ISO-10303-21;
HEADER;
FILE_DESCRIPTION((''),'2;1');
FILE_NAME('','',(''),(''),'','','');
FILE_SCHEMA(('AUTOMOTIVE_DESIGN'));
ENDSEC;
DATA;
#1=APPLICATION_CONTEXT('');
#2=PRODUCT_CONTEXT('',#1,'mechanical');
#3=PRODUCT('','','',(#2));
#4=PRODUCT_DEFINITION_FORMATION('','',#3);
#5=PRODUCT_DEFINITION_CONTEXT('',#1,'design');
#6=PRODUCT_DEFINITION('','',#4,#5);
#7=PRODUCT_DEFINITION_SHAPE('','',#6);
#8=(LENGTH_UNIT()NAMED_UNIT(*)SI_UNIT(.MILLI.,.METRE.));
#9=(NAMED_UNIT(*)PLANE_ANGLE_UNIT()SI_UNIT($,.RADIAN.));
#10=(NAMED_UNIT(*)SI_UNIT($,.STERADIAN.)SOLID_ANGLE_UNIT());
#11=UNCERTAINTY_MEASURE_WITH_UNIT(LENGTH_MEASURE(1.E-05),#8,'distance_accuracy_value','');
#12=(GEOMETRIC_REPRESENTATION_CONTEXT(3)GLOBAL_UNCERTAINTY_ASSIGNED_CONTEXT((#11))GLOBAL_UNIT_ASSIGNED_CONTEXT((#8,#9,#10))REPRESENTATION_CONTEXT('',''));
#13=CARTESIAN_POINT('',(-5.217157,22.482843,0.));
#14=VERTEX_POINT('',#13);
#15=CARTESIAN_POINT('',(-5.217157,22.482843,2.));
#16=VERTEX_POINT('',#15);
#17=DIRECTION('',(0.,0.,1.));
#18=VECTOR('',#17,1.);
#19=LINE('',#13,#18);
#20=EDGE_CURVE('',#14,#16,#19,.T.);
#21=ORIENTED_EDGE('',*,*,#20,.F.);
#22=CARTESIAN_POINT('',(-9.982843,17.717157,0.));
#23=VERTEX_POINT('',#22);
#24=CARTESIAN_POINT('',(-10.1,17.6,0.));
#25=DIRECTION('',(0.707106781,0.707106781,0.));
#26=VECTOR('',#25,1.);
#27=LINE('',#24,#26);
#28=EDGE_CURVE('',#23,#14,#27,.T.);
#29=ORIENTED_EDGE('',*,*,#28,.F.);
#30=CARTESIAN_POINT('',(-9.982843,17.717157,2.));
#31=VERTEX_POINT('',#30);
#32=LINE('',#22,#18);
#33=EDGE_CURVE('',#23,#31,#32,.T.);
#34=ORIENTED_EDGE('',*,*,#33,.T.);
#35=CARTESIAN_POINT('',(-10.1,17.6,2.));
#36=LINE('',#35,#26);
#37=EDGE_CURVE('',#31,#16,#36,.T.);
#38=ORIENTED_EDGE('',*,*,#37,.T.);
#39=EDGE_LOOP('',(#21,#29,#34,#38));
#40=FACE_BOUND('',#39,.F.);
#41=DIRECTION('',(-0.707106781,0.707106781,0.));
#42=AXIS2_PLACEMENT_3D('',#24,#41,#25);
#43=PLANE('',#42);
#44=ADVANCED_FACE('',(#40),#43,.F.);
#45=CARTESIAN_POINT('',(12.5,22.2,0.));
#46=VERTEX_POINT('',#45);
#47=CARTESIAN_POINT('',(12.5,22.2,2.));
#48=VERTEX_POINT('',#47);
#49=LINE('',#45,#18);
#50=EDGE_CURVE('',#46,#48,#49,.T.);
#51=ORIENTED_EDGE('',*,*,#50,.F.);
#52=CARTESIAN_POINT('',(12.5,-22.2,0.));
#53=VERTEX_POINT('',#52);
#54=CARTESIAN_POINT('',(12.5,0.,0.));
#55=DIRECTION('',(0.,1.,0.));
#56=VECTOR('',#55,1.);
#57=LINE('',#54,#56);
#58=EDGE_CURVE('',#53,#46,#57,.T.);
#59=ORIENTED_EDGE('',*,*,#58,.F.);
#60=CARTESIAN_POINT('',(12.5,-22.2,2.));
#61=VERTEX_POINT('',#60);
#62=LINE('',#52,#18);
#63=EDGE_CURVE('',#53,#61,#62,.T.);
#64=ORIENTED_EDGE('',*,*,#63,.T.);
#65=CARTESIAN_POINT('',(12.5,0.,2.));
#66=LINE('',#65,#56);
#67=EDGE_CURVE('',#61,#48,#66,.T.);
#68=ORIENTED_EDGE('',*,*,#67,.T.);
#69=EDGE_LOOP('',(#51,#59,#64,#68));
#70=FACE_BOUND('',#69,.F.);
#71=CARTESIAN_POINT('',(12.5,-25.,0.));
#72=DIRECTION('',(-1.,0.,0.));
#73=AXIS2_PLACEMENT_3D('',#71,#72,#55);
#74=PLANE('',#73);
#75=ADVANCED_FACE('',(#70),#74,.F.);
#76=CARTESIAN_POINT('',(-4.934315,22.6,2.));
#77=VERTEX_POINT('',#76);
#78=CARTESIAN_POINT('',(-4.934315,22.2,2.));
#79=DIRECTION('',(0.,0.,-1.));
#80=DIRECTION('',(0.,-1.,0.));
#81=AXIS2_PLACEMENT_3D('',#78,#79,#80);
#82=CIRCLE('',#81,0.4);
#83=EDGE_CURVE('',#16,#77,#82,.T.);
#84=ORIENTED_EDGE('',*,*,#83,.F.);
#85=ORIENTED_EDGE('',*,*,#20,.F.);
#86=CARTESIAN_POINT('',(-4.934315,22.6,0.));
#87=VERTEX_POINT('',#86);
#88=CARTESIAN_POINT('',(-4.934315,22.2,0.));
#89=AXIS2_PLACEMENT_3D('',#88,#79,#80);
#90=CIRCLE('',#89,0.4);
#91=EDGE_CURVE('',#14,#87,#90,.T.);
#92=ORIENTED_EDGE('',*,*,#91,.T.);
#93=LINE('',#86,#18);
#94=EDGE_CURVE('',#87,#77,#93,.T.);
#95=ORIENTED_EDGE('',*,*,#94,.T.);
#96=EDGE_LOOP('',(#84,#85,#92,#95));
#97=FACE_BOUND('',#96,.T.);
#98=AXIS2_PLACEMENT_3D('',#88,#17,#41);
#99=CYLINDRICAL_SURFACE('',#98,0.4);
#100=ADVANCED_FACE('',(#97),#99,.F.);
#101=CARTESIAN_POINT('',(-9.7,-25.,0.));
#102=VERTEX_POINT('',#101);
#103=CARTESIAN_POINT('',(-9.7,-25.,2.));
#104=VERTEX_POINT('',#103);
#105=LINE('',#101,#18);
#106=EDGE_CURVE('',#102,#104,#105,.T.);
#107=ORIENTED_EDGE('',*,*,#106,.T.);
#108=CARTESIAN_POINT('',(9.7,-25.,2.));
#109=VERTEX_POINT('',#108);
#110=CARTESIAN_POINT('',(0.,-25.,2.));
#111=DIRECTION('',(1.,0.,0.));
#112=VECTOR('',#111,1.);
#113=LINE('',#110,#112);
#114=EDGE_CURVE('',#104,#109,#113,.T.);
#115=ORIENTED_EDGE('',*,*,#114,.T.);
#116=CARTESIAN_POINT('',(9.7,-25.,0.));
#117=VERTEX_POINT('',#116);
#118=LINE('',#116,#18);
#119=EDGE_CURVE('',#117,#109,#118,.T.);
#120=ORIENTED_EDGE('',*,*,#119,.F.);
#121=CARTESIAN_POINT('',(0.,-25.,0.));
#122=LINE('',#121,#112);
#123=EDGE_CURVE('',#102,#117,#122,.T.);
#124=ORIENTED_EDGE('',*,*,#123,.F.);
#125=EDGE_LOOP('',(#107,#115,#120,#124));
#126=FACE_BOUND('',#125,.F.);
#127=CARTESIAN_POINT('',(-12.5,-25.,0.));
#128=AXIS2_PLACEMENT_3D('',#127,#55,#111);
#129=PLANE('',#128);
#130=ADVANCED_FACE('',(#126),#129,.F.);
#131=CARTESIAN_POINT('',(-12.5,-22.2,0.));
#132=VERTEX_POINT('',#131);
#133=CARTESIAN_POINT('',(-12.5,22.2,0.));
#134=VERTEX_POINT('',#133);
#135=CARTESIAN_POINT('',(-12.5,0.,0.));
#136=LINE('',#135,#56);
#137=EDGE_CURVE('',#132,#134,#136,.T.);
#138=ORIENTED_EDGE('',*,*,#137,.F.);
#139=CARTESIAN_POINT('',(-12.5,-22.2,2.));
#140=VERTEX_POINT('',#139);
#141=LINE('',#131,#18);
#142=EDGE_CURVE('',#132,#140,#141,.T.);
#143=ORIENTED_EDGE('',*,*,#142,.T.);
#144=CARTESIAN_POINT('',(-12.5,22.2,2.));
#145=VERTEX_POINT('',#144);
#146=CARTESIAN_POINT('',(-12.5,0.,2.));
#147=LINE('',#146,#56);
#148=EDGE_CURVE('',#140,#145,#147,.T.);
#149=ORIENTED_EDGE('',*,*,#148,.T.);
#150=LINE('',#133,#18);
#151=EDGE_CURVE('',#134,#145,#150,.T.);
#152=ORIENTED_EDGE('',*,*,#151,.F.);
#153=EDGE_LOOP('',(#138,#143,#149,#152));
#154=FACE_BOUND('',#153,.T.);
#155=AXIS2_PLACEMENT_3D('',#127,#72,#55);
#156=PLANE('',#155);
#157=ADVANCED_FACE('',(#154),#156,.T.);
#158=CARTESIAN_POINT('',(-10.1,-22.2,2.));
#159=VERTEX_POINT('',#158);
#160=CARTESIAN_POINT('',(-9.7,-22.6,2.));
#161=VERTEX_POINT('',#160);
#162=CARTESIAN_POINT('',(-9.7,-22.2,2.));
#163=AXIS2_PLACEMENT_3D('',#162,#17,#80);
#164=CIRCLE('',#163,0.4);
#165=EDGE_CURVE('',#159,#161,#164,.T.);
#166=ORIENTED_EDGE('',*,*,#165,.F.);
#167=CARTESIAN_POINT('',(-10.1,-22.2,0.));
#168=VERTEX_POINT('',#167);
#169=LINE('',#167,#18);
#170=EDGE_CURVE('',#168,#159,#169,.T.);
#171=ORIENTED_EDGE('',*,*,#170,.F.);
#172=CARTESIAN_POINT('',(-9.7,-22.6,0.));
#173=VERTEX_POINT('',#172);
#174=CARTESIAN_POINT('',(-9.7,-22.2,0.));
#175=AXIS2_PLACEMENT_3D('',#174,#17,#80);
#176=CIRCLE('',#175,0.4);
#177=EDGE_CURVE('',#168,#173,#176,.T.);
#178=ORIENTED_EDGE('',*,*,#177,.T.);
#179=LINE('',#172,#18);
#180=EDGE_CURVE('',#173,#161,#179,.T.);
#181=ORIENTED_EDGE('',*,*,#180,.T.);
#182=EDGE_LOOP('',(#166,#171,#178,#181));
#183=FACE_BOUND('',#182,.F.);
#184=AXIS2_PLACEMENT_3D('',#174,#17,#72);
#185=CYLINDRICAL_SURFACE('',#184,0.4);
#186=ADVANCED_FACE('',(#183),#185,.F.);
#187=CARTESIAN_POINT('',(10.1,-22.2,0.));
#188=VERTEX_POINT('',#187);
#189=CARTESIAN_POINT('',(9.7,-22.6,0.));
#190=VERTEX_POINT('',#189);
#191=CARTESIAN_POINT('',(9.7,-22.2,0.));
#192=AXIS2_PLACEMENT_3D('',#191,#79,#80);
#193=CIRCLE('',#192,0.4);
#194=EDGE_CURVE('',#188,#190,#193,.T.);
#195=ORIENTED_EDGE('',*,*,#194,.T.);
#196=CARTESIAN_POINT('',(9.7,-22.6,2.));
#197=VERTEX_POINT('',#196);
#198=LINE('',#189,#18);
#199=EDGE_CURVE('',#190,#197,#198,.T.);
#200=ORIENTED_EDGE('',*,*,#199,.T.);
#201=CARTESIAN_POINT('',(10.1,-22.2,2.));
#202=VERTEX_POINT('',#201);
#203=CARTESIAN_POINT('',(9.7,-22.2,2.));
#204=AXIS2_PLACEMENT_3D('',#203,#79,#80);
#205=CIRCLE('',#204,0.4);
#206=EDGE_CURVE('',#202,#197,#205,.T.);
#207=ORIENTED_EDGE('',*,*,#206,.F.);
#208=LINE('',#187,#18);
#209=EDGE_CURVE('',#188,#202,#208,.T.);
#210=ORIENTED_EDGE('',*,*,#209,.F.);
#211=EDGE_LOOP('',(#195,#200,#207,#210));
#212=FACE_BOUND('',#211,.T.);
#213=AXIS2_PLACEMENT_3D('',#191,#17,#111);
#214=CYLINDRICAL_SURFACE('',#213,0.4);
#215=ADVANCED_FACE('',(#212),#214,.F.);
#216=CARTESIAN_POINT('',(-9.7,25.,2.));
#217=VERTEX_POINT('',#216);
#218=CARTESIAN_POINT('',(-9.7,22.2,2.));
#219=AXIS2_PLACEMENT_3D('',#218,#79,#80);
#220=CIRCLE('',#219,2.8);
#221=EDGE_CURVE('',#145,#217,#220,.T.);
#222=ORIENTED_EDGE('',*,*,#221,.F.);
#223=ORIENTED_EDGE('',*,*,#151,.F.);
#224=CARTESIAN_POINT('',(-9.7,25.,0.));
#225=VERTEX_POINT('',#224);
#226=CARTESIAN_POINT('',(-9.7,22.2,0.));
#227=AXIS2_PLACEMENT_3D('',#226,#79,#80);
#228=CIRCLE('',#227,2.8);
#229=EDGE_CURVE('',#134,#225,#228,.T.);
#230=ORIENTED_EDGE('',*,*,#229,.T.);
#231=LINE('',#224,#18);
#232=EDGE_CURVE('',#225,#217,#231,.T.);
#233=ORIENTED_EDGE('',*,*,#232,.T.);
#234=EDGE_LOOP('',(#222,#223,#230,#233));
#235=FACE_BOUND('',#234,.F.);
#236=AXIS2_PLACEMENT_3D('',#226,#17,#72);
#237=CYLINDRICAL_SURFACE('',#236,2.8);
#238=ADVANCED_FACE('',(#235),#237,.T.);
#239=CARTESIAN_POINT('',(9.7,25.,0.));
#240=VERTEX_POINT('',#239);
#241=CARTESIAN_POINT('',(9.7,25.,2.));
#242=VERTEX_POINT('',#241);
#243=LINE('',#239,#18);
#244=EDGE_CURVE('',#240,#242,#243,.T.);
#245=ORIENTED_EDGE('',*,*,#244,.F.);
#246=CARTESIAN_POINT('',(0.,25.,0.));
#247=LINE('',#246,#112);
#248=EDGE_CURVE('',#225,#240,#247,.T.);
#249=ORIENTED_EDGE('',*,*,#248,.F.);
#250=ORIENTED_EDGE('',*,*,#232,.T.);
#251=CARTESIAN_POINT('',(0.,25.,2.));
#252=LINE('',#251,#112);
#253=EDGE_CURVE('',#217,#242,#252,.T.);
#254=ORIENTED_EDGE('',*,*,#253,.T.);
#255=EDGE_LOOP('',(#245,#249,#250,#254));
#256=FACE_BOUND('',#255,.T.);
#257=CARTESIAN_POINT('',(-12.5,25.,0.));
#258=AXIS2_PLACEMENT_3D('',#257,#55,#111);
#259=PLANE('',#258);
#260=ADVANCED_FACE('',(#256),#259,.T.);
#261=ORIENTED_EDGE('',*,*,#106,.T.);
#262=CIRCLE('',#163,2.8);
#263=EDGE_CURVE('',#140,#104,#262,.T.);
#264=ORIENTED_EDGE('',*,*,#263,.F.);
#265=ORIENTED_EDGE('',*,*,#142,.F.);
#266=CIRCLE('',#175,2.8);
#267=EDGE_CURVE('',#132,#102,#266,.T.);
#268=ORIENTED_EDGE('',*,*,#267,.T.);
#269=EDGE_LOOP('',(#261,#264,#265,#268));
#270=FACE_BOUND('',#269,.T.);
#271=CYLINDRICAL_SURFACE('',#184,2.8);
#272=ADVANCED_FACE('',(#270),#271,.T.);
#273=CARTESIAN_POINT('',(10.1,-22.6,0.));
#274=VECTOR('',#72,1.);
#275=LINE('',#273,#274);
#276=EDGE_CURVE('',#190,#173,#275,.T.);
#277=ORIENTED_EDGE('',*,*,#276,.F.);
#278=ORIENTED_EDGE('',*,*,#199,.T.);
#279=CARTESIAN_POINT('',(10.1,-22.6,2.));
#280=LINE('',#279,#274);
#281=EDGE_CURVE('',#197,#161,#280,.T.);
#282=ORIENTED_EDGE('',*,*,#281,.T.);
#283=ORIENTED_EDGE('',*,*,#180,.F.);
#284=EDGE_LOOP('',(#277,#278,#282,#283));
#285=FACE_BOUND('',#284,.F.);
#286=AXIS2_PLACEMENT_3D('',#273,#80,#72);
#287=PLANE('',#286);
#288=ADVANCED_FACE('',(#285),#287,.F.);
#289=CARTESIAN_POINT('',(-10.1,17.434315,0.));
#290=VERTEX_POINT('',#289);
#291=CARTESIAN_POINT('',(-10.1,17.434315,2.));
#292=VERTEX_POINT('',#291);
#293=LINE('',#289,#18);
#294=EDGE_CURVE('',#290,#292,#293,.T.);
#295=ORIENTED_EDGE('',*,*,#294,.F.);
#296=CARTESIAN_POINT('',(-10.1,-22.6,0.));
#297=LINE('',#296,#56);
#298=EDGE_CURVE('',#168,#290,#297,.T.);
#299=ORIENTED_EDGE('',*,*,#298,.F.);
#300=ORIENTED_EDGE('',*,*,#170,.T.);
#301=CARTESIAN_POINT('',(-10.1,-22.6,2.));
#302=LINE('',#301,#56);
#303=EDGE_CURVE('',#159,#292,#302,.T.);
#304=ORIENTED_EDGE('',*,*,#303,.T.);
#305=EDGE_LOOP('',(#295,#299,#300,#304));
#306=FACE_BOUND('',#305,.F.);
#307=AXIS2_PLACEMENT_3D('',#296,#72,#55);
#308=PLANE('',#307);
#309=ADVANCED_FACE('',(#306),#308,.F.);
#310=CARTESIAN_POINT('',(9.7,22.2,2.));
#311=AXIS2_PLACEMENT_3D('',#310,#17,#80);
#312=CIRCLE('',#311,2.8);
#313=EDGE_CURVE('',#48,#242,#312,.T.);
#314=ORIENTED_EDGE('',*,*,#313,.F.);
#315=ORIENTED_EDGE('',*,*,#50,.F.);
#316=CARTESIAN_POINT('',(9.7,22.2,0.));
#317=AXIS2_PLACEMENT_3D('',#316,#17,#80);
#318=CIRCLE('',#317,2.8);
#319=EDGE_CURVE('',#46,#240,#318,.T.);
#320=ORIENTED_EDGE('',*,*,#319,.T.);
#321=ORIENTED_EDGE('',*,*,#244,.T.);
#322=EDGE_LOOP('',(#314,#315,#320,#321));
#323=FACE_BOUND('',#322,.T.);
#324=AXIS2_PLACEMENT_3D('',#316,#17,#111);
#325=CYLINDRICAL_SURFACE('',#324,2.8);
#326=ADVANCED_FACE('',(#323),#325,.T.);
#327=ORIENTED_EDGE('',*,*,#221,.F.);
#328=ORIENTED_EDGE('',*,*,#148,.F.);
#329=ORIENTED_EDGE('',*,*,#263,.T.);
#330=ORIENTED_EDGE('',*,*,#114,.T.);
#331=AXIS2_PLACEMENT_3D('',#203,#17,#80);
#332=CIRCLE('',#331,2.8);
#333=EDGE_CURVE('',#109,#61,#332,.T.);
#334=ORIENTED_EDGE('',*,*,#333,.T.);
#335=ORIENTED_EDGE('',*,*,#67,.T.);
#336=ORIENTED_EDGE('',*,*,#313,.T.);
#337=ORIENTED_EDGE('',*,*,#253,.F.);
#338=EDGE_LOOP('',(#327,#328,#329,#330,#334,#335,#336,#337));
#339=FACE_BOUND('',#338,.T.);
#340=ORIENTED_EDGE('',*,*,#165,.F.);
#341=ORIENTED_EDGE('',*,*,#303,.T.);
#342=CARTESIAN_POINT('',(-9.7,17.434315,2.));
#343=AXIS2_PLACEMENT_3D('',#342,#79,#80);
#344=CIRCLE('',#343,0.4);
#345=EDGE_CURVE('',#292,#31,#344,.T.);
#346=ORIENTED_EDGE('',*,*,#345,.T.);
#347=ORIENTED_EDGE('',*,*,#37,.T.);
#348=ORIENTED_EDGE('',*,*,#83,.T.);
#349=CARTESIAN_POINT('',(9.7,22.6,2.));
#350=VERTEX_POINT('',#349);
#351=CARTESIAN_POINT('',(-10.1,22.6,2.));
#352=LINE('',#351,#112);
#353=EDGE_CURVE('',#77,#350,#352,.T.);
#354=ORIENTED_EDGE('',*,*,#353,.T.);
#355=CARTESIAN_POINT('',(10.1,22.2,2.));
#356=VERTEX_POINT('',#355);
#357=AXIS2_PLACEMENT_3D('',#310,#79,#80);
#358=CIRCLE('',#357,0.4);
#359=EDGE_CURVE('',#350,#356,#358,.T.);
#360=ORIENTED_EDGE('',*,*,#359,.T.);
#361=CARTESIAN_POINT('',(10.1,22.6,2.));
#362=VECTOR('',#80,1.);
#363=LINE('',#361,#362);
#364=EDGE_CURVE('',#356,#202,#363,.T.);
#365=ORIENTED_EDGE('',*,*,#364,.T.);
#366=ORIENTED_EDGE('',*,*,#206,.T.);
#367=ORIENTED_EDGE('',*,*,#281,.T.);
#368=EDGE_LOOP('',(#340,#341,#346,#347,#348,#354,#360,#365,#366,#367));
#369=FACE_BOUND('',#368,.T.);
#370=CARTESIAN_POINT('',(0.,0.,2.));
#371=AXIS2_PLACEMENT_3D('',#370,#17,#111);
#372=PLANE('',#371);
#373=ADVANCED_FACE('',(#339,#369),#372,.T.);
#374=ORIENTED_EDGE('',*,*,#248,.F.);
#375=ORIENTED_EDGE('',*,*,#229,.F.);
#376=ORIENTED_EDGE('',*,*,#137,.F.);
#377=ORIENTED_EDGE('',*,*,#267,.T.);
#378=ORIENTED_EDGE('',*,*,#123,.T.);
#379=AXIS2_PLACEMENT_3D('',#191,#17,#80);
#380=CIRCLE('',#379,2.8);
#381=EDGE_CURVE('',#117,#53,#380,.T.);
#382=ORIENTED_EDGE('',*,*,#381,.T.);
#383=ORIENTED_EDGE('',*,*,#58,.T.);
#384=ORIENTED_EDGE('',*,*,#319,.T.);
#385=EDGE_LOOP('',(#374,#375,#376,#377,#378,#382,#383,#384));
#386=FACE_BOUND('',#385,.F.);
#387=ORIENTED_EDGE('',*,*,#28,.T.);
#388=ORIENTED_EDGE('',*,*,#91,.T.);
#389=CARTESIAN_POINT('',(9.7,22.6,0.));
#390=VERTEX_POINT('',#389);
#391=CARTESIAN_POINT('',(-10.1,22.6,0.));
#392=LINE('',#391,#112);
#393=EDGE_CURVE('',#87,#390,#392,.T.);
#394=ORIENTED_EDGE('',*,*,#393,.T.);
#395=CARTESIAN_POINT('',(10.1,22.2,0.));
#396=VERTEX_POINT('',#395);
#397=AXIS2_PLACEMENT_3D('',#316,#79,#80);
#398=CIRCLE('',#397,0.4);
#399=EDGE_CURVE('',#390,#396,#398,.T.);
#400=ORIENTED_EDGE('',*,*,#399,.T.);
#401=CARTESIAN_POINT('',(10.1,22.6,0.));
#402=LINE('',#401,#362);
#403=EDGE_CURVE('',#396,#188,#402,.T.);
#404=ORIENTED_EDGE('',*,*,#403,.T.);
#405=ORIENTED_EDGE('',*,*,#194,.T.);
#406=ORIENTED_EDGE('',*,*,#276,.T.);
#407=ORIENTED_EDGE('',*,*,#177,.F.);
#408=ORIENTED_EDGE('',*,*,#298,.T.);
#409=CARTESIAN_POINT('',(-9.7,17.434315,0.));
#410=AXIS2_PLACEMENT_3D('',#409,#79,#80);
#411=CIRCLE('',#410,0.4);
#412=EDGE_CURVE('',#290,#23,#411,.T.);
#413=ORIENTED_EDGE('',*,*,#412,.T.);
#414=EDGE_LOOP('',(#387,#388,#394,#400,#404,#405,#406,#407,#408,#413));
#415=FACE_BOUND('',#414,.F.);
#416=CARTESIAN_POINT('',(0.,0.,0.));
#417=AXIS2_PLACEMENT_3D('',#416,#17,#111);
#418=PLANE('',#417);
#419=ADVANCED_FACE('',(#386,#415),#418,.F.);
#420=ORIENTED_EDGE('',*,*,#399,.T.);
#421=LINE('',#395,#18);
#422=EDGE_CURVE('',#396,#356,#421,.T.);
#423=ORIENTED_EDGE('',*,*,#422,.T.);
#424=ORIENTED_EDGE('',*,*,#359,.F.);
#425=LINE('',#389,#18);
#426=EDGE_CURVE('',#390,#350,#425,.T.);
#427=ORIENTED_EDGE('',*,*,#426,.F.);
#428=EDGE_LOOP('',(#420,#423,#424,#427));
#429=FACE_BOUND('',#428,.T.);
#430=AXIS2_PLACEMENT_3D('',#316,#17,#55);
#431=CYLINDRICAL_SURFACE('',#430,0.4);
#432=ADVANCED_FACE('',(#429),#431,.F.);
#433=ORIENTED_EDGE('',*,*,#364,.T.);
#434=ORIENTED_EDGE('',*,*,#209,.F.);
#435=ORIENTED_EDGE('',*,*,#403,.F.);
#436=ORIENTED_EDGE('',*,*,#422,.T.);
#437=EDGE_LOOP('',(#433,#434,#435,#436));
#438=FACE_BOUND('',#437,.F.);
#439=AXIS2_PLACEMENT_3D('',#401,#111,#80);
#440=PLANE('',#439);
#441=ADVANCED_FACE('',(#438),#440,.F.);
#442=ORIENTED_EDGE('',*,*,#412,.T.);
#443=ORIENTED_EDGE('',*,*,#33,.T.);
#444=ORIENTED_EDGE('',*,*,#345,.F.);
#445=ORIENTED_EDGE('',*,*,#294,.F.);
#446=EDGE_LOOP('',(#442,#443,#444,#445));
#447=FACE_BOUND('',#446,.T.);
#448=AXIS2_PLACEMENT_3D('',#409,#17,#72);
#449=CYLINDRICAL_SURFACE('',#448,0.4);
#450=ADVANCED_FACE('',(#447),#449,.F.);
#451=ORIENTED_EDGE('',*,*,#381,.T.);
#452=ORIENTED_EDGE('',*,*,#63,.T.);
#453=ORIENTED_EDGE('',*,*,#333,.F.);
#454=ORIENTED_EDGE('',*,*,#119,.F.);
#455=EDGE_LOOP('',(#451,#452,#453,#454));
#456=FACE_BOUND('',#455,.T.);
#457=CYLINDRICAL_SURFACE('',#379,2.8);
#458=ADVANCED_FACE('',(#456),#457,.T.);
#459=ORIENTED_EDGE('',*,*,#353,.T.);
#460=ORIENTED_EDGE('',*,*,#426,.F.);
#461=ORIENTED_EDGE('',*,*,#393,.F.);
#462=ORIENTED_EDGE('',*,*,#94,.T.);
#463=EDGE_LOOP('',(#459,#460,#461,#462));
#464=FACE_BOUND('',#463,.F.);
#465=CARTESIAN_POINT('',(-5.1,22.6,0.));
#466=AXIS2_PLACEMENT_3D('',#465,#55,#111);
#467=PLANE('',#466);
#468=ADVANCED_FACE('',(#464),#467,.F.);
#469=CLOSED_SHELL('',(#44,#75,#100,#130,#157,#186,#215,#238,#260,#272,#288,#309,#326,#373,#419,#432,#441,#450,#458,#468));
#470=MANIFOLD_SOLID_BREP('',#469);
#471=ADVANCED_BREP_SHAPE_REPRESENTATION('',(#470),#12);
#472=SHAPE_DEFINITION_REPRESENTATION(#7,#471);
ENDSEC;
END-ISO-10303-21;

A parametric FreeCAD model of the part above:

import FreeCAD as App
import Part
import Sketcher
Q = App.Units.Quantity


def edges_at(feature, points):
    """Names of the edges that pass closest to the given points."""
    edges = feature.Shape.Edges
    near = lambda p: min(range(len(edges)), key=lambda i: edges[i].distToShape(Part.Vertex(*p))[0])
    return sorted({f"Edge{near(p) + 1}" for p in points})


def add_polygon(sketch, points):
    """Adds a closed chain of lines whose ends are joined by coincident constraints."""
    first, n = sketch.GeometryCount, len(points)
    for a, b in zip(points, points[1:] + points[:1]):
        sketch.addGeometry(Part.LineSegment(App.Vector(*a, 0), App.Vector(*b, 0)), False)
    for i in range(n):
        sketch.addConstraint(Sketcher.Constraint("Coincident", first + i, 2, first + (i + 1) % n, 1))

doc = App.newDocument("Part")
body = doc.addObject("PartDesign::Body", "Body")

# Sketch on XY plane
sketch1 = body.newObject("Sketcher::SketchObject", "Sketch")
sketch1.AttachmentSupport = (doc.getObject("XY_Plane"), [""])
sketch1.MapMode = "FlatFace"
add_polygon(sketch1, [(-12.5, 25), (-12.5, -25), (12.5, -25), (12.5, 25)])  # lines 0-3
add_polygon(sketch1, [(-10.1, -22.6), (-10.1, 17.6), (-5.1, 22.6), (10.1, 22.6), (10.1, -22.6)])  # lines 4-8
sketch1.addConstraint([
    Sketcher.Constraint("Vertical", 0),
    Sketcher.Constraint("Horizontal", 1),
    Sketcher.Constraint("Vertical", 2),
    Sketcher.Constraint("Horizontal", 3),
    Sketcher.Constraint("Vertical", 4),
    Sketcher.Constraint("Horizontal", 6),
    Sketcher.Constraint("Vertical", 7),
    Sketcher.Constraint("Horizontal", 8),
    Sketcher.Constraint("Symmetric", 0, 2, 2, 2, -1, 1),
    Sketcher.Constraint("Symmetric", 6, 2, 8, 2, -1, 1),
    Sketcher.Constraint("DistanceX", 1, 1, 1, 2, 25.0),
    Sketcher.Constraint("DistanceY", 0, 2, 0, 1, 50.0),
    Sketcher.Constraint("Angle", 5, Q("45 deg")),
    Sketcher.Constraint("DistanceX", 6, 1, 6, 2, 15.2),
    Sketcher.Constraint("DistanceX", 8, 2, 8, 1, 20.2),
    Sketcher.Constraint("DistanceY", 4, 1, 4, 2, 40.2),
])
pad1 = body.newObject("PartDesign::Pad", "Pad")
pad1.Profile = sketch1
pad1.Length = 2
doc.recompute()

fillet = body.newObject("PartDesign::Fillet", "Fillet")
fillet.Base = (pad1, edges_at(pad1, [
    (-12.5, 25, 1),
    (-12.5, -25, 1),
    (12.5, -25, 1),
    (12.5, 25, 1),
]))
fillet.Radius = 2.8
doc.recompute()

fillet2 = body.newObject("PartDesign::Fillet", "Fillet001")
fillet2.Base = (fillet, edges_at(fillet, [
    (10.1, 22.6, 1),
    (-5.1, 22.6, 1),
    (-10.1, 17.6, 1),
    (-10.1, -22.6, 1),
    (10.1, -22.6, 1),
]))
fillet2.Radius = 0.4

doc.recompute()
